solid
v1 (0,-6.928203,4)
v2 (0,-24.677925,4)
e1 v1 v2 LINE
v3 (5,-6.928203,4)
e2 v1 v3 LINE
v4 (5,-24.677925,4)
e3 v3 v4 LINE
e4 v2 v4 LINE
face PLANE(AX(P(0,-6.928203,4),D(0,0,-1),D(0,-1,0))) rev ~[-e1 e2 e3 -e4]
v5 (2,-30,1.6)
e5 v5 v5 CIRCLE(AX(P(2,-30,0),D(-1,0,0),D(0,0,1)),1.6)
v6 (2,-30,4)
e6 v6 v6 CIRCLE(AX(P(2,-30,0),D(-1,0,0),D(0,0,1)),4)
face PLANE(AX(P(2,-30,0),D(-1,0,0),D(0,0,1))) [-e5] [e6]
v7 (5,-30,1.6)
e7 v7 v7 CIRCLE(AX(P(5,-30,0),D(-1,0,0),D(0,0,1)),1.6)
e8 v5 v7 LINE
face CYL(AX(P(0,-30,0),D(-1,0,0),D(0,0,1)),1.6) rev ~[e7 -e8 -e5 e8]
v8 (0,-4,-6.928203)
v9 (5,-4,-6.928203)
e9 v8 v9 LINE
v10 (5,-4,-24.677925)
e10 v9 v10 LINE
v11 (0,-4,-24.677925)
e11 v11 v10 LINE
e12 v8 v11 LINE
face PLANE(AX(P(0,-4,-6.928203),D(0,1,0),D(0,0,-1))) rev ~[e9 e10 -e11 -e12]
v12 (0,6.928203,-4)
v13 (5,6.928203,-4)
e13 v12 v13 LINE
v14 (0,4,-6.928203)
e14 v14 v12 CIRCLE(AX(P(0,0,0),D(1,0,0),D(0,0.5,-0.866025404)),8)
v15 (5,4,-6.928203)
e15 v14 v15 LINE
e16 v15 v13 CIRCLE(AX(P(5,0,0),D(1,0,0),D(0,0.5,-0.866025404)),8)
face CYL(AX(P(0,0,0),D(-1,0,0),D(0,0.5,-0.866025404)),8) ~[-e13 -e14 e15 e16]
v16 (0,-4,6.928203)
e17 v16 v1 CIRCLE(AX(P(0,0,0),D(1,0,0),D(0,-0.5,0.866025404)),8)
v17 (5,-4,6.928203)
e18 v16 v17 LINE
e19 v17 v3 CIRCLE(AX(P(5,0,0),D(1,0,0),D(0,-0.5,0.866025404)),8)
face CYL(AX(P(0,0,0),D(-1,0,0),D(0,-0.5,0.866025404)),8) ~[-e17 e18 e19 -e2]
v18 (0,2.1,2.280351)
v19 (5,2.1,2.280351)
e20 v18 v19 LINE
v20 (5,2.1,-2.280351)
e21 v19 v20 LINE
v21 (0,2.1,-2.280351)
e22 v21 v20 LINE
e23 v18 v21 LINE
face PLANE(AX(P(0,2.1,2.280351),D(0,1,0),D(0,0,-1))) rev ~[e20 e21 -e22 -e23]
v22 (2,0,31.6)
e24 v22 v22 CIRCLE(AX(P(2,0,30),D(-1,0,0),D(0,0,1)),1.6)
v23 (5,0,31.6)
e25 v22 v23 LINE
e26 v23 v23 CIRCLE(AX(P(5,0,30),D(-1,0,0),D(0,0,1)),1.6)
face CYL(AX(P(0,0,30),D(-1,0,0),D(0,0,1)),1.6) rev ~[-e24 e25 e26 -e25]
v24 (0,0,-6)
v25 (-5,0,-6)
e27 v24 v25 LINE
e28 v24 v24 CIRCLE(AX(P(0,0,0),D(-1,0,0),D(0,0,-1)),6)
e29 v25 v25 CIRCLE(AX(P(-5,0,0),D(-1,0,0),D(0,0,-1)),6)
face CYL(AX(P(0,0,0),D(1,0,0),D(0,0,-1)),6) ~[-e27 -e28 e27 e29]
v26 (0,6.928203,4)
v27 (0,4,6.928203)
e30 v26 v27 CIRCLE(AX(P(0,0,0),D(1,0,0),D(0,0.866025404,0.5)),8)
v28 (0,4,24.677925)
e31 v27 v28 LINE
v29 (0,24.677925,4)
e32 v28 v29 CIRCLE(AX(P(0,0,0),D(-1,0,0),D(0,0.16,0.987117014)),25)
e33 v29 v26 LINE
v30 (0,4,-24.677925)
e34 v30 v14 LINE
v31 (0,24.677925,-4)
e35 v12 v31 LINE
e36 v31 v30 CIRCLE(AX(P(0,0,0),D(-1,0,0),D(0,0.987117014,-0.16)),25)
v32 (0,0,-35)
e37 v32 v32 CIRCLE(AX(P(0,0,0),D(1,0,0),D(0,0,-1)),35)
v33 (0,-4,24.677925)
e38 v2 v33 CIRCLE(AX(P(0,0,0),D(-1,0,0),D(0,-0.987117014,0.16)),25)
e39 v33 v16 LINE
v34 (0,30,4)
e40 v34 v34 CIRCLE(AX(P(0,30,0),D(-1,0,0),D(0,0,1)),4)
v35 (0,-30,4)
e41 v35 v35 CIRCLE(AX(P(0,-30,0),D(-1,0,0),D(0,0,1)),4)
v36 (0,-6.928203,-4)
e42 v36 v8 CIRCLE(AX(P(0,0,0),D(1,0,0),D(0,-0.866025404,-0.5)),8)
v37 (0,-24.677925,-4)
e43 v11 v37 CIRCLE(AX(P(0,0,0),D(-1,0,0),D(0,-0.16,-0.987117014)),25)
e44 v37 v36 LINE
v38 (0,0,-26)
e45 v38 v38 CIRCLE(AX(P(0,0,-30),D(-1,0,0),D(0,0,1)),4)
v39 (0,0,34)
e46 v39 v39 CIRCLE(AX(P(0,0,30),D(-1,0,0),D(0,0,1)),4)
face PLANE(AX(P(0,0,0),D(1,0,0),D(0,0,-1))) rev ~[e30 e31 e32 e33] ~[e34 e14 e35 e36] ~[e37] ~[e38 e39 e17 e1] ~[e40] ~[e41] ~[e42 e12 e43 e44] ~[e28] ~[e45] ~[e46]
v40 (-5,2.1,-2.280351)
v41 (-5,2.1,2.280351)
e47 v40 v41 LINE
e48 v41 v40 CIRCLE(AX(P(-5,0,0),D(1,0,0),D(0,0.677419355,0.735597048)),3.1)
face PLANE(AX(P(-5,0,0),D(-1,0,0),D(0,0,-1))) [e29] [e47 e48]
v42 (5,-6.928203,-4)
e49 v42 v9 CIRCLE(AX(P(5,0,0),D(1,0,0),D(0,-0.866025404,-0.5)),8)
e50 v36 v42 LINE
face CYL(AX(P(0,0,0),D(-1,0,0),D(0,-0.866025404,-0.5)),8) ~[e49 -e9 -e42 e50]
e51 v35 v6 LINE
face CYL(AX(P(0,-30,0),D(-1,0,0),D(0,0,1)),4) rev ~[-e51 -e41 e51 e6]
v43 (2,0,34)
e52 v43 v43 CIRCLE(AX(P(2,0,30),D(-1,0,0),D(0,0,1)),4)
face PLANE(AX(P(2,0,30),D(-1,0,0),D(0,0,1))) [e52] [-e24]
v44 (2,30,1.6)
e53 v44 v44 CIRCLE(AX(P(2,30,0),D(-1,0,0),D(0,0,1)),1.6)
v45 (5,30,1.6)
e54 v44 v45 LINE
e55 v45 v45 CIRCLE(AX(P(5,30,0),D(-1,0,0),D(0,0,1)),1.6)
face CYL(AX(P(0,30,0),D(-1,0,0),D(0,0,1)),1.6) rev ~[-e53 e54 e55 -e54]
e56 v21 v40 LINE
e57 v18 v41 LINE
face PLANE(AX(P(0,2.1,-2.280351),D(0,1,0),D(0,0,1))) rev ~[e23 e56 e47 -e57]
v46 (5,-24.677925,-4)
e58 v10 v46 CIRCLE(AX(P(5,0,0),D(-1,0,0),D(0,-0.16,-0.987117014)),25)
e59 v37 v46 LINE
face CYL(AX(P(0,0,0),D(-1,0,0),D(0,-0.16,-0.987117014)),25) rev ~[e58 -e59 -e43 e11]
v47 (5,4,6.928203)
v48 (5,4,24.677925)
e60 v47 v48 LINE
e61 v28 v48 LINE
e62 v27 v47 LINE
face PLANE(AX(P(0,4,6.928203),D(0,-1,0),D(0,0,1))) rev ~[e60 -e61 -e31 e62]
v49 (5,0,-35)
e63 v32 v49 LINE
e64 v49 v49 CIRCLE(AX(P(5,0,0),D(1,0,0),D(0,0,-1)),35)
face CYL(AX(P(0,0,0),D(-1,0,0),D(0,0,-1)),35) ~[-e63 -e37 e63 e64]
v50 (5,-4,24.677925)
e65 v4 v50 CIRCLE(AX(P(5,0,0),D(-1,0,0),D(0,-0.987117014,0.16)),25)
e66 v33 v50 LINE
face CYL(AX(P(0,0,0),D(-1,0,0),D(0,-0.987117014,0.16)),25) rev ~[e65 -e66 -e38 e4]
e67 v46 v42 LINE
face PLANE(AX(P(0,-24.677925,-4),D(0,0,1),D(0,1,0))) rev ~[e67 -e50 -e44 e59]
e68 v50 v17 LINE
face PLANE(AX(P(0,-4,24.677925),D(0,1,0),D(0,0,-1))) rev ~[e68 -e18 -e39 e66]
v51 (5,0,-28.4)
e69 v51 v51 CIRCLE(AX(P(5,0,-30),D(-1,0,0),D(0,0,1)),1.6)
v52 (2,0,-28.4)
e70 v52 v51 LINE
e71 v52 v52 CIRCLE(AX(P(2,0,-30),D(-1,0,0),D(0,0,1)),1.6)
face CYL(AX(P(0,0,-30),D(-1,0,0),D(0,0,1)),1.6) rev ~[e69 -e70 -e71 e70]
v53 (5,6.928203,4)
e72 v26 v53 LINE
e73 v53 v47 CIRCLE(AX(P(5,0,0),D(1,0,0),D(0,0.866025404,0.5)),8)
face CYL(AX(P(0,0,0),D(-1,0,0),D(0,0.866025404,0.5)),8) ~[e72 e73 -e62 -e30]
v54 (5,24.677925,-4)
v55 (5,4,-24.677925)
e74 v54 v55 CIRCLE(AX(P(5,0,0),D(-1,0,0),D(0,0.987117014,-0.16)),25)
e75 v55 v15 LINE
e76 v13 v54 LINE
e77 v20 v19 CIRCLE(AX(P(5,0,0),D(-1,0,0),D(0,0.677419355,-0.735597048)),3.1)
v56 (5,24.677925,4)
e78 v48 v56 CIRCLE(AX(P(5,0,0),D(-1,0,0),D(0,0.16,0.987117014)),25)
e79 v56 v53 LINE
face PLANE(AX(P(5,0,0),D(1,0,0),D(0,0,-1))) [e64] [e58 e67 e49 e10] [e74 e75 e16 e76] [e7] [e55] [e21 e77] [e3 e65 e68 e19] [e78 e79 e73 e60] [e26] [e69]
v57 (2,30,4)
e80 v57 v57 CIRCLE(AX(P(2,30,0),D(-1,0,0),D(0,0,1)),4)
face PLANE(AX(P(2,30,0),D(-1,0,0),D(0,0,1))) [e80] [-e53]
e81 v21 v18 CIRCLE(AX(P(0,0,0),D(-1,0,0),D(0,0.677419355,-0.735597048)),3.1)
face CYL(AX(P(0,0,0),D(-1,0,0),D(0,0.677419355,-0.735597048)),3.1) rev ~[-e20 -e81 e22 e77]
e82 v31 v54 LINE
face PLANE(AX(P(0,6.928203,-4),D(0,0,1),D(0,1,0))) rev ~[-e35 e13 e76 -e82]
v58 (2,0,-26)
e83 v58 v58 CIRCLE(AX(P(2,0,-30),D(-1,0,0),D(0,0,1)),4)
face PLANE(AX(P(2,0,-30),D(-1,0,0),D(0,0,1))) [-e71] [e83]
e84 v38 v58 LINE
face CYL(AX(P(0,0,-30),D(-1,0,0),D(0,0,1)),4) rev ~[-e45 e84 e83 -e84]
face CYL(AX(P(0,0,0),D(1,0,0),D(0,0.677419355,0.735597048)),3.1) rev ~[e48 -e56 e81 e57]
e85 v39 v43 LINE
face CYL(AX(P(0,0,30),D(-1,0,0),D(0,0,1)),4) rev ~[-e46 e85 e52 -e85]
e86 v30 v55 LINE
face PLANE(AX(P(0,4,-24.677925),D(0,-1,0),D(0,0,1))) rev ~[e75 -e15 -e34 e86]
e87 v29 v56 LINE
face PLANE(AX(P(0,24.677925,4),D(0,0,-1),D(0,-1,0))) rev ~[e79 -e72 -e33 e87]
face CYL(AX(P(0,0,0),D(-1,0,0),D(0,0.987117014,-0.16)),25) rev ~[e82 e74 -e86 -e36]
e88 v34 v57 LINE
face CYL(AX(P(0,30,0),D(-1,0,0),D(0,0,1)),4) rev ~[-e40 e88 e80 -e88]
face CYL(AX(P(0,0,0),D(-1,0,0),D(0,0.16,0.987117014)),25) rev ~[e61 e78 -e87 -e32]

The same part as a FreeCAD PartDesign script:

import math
import FreeCAD as App
import Part
import Sketcher
from FreeCAD import Vector

doc = App.newDocument("Part")
body = doc.addObject("PartDesign::Body", "Body")

# Sketch on YZ plane
sketch1 = body.newObject("Sketcher::SketchObject", "Sketch")
sketch1.AttachmentSupport = (doc.getObject("YZ_Plane"), [""])
sketch1.MapMode = "FlatFace"
sketch1.addGeometry([
    Part.Circle(Vector(0, 0, 0), Vector(0, 0, 1), 35),  # 0
    Part.ArcOfCircle(Part.Circle(Vector(0, 0, 0), Vector(0, 0, 1), 25), math.radians(99), math.radians(171)),  # 1
    Part.LineSegment(Vector(-4, 24.7, 0), Vector(-4, 6.9, 0)),  # 2
    Part.ArcOfCircle(Part.Circle(Vector(0, 0, 0), Vector(0, 0, 1), 8), math.radians(120), math.radians(150)),  # 3
    Part.LineSegment(Vector(-6.9, 4, 0), Vector(-24.7, 4, 0)),  # 4
    Part.ArcOfCircle(Part.Circle(Vector(0, 0, 0), Vector(0, 0, 1), 3.1), math.radians(47), math.radians(313)),  # 5
    Part.LineSegment(Vector(2.1, 2.3, 0), Vector(2.1, -2.3, 0)),  # 6
    Part.ArcOfCircle(Part.Circle(Vector(0, 0, 0), Vector(0, 0, 1), 25), math.radians(-171), math.radians(-99)),  # 7
    Part.LineSegment(Vector(-24.7, -4, 0), Vector(-6.9, -4, 0)),  # 8
    Part.ArcOfCircle(Part.Circle(Vector(0, 0, 0), Vector(0, 0, 1), 8), math.radians(-150), math.radians(-120)),  # 9
    Part.LineSegment(Vector(-4, -6.9, 0), Vector(-4, -24.7, 0)),  # 10
    Part.ArcOfCircle(Part.Circle(Vector(0, 0, 0), Vector(0, 0, 1), 25), math.radians(9), math.radians(81)),  # 11
    Part.LineSegment(Vector(24.7, 4, 0), Vector(6.9, 4, 0)),  # 12
    Part.ArcOfCircle(Part.Circle(Vector(0, 0, 0), Vector(0, 0, 1), 8), math.radians(30), math.radians(60)),  # 13
    Part.LineSegment(Vector(4, 6.9, 0), Vector(4, 24.7, 0)),  # 14
    Part.ArcOfCircle(Part.Circle(Vector(0, 0, 0), Vector(0, 0, 1), 8), math.radians(-60), math.radians(-30)),  # 15
    Part.LineSegment(Vector(6.9, -4, 0), Vector(24.7, -4, 0)),  # 16
    Part.ArcOfCircle(Part.Circle(Vector(0, 0, 0), Vector(0, 0, 1), 25), math.radians(-81), math.radians(-9)),  # 17
    Part.LineSegment(Vector(4, -24.7, 0), Vector(4, -6.9, 0)),  # 18
], False)
sketch1.addConstraint([
    Sketcher.Constraint("Coincident", 1, 1, 2, 1),
    Sketcher.Constraint("Coincident", 2, 2, 3, 1),
    Sketcher.Constraint("Coincident", 3, 2, 4, 1),
    Sketcher.Constraint("Coincident", 4, 2, 1, 2),
    Sketcher.Constraint("Coincident", 5, 1, 6, 1),
    Sketcher.Constraint("Coincident", 6, 2, 5, 2),
    Sketcher.Constraint("Coincident", 7, 1, 8, 1),
    Sketcher.Constraint("Coincident", 8, 2, 9, 1),
    Sketcher.Constraint("Coincident", 9, 2, 10, 1),
    Sketcher.Constraint("Coincident", 10, 2, 7, 2),
    Sketcher.Constraint("Coincident", 11, 1, 12, 1),
    Sketcher.Constraint("Coincident", 12, 2, 13, 1),
    Sketcher.Constraint("Coincident", 13, 2, 14, 1),
    Sketcher.Constraint("Coincident", 14, 2, 11, 2),
    Sketcher.Constraint("Coincident", 15, 2, 16, 1),
    Sketcher.Constraint("Coincident", 16, 2, 17, 2),
    Sketcher.Constraint("Coincident", 17, 1, 18, 1),
    Sketcher.Constraint("Coincident", 18, 2, 15, 1),
    Sketcher.Constraint("Vertical", 2),
    Sketcher.Constraint("Horizontal", 4),
    Sketcher.Constraint("Vertical", 6),
    Sketcher.Constraint("Horizontal", 8),
    Sketcher.Constraint("Vertical", 10),
    Sketcher.Constraint("Horizontal", 12),
    Sketcher.Constraint("Vertical", 14),
    Sketcher.Constraint("Horizontal", 16),
    Sketcher.Constraint("Vertical", 18),
    Sketcher.Constraint("Coincident", 0, 3, -1, 1),
    Sketcher.Constraint("Coincident", 1, 3, -1, 1),
    Sketcher.Constraint("Coincident", 3, 3, -1, 1),
    Sketcher.Constraint("Coincident", 5, 3, -1, 1),
    Sketcher.Constraint("Coincident", 7, 3, -1, 1),
    Sketcher.Constraint("Coincident", 9, 3, -1, 1),
    Sketcher.Constraint("Coincident", 11, 3, -1, 1),
    Sketcher.Constraint("Coincident", 13, 3, -1, 1),
    Sketcher.Constraint("Coincident", 15, 3, -1, 1),
    Sketcher.Constraint("Coincident", 17, 3, -1, 1),
    Sketcher.Constraint("Equal", 1, 7),
    Sketcher.Constraint("Equal", 3, 9),
    Sketcher.Constraint("Equal", 7, 11),
    Sketcher.Constraint("Equal", 9, 13),
    Sketcher.Constraint("Equal", 13, 15),
    Sketcher.Constraint("Equal", 11, 17),
    Sketcher.Constraint("Horizontal", 4, 2, 11, 1),
    Sketcher.Constraint("Horizontal", 2, 2, 13, 2),
    Sketcher.Constraint("Horizontal", 8, 2, 15, 2),
    Sketcher.Constraint("Horizontal", 10, 2, 17, 1),
    Sketcher.Constraint("Vertical", 4, 2, 7, 1),
    Sketcher.Constraint("Vertical", 2, 2, 9, 2),
    Sketcher.Constraint("Equal", 16, 2),
    Sketcher.Constraint("Diameter", 0, 70.0),
    Sketcher.Constraint("Radius", 1, 25.0),
    Sketcher.Constraint("Radius", 3, 8.0),
    Sketcher.Constraint("Radius", 5, 3.1),
    Sketcher.Constraint("DistanceX", 1, 1, -1, 1, 4.0),
    Sketcher.Constraint("DistanceX", -1, 1, 5, 1, 2.1),
])
pad1 = body.newObject("PartDesign::Pad", "Pad")
pad1.Profile = sketch1
pad1.Length = 5

# Sketch on YZ plane
sketch2 = body.newObject("Sketcher::SketchObject", "Sketch001")
sketch2.AttachmentSupport = (doc.getObject("YZ_Plane"), [""])
sketch2.MapMode = "FlatFace"
sketch2.addGeometry([
    Part.Circle(Vector(30, 0, 0), Vector(0, 0, 1), 1.6),
    Part.Circle(Vector(0, 30, 0), Vector(0, 0, 1), 1.6),
    Part.Circle(Vector(-30, 0, 0), Vector(0, 0, 1), 1.6),
    Part.Circle(Vector(0, -30, 0), Vector(0, 0, 1), 1.6),
], False)
sketch2.addConstraint([
    Sketcher.Constraint("Equal", 0, 1),
    Sketcher.Constraint("Equal", 1, 2),
    Sketcher.Constraint("Equal", 2, 3),
    Sketcher.Constraint("Symmetric", 0, 3, 2, 3, -1, 1),
    Sketcher.Constraint("Symmetric", 1, 3, 3, 3, -1, 1),
    Sketcher.Constraint("PointOnObject", 0, 3, -1),
    Sketcher.Constraint("PointOnObject", 1, 3, -2),
    Sketcher.Constraint("Diameter", 0, 3.2),
    Sketcher.Constraint("DistanceX", -1, 1, 0, 3, 30.0),
    Sketcher.Constraint("DistanceY", -1, 1, 1, 3, 30.0),
])
pocket1 = body.newObject("PartDesign::Pocket", "Pocket")
pocket1.Profile = sketch2
pocket1.Type = "ThroughAll"
pocket1.Reversed = True

# Sketch on YZ plane
sketch3 = body.newObject("Sketcher::SketchObject", "Sketch002")
sketch3.AttachmentSupport = (doc.getObject("YZ_Plane"), [""])
sketch3.MapMode = "FlatFace"
sketch3.addGeometry([
    Part.Circle(Vector(0, 0, 0), Vector(0, 0, 1), 6),
    Part.ArcOfCircle(Part.Circle(Vector(0, 0, 0), Vector(0, 0, 1), 3.1), math.radians(47), math.radians(313)),
    Part.LineSegment(Vector(2.1, -2.3, 0), Vector(2.1, 2.3, 0)),
], False)
sketch3.addConstraint([
    Sketcher.Constraint("Coincident", 1, 1, 2, 2),
    Sketcher.Constraint("Coincident", 2, 1, 1, 2),
    Sketcher.Constraint("Vertical", 2),
    Sketcher.Constraint("Coincident", 0, 3, -1, 1),
    Sketcher.Constraint("Coincident", 1, 3, -1, 1),
    Sketcher.Constraint("Diameter", 0, 12.0),
    Sketcher.Constraint("Radius", 1, 3.1),
    Sketcher.Constraint("DistanceX", -1, 1, 1, 1, 2.1),
])
pad2 = body.newObject("PartDesign::Pad", "Pad001")
pad2.Profile = sketch3
pad2.Length = 5
pad2.Reversed = True

# Sketch on YZ plane
sketch4 = body.newObject("Sketcher::SketchObject", "Sketch003")
sketch4.AttachmentSupport = (doc.getObject("YZ_Plane"), [""])
sketch4.MapMode = "FlatFace"
sketch4.addGeometry([
    Part.Circle(Vector(30, 0, 0), Vector(0, 0, 1), 4),
    Part.Circle(Vector(0, 30, 0), Vector(0, 0, 1), 4),
    Part.Circle(Vector(-30, 0, 0), Vector(0, 0, 1), 4),
    Part.Circle(Vector(0, -30, 0), Vector(0, 0, 1), 4),
], False)
sketch4.addConstraint([
    Sketcher.Constraint("Equal", 0, 1),
    Sketcher.Constraint("Equal", 1, 2),
    Sketcher.Constraint("Equal", 2, 3),
    Sketcher.Constraint("Symmetric", 0, 3, 2, 3, -1, 1),
    Sketcher.Constraint("Symmetric", 1, 3, 3, 3, -1, 1),
    Sketcher.Constraint("PointOnObject", 0, 3, -1),
    Sketcher.Constraint("PointOnObject", 1, 3, -2),
    Sketcher.Constraint("Diameter", 0, 8.0),
    Sketcher.Constraint("DistanceX", -1, 1, 0, 3, 30.0),
    Sketcher.Constraint("DistanceY", -1, 1, 1, 3, 30.0),
])
pocket2 = body.newObject("PartDesign::Pocket", "Pocket001")
pocket2.Profile = sketch4
pocket2.Length = 2
pocket2.Reversed = True

doc.recompute()
